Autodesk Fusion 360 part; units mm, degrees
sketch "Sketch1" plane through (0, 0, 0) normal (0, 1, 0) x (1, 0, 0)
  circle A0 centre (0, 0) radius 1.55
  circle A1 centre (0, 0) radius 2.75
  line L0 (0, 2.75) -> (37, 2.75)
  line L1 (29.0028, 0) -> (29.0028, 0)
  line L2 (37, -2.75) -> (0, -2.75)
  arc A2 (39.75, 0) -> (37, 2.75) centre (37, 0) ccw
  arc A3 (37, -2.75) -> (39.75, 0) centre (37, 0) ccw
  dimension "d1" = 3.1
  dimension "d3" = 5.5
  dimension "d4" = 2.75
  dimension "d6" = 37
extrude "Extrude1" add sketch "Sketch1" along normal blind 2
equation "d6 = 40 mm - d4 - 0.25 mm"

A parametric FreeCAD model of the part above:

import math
import FreeCAD as App
import Part
import Sketcher
from FreeCAD import Vector

doc = App.newDocument("Part")
params = doc.addObject("Spreadsheet::Sheet", "Params")
for row, (alias, value) in enumerate([
    ("sketch1_diameter", "3.1 mm"),
    ("sketch1_width", "37 mm"),
    ("sketch1_radius", "2.75 mm"),
    ("pad1_length", "2 mm"),
], start=1):
    params.set(f"A{row}", alias)
    params.set(f"B{row}", "=" + value)
    params.setAlias(f"B{row}", alias)

body = doc.addObject("PartDesign::Body", "Body")

sketch1 = doc.addObject("Sketcher::SketchObject", "Sketch")
body.addObject(sketch1)
sketch1.AttachmentSupport = (doc.XZ_Plane, [""])
sketch1.MapMode = "FlatFace"
sketch1.addGeometry([
    Part.ArcOfCircle(Part.Circle(Vector(0, 0, 0), Vector(0, 0, 1), 2.75), math.radians(90), math.radians(270)),
    Part.LineSegment(Vector(0, 2.75, 0), Vector(37, 2.75, 0)),
    Part.ArcOfCircle(Part.Circle(Vector(37, 0, 0), Vector(0, 0, 1), 2.75), math.radians(-90), math.radians(90)),
    Part.LineSegment(Vector(37, -2.75, 0), Vector(0, -2.75, 0)),
    Part.Circle(Vector(0, 0, 0), Vector(0, 0, 1), 1.55),
], False)
sketch1.addConstraint([
    Sketcher.Constraint("Tangent", 0, 1, 1, 1),
    Sketcher.Constraint("Tangent", 1, 2, 2, 2),
    Sketcher.Constraint("Tangent", 2, 1, 3, 1),
    Sketcher.Constraint("Tangent", 3, 2, 0, 2),
    Sketcher.Constraint("Horizontal", 1),
    Sketcher.Constraint("Horizontal", 3),
    Sketcher.Constraint("Coincident", 0, 3, -1, 1),
    Sketcher.Constraint("Coincident", 4, 3, -1, 1),
    Sketcher.Constraint("Diameter", 4, 3.1),
    Sketcher.Constraint("DistanceX", 1, 1, 1, 2, 37.0),
    Sketcher.Constraint("Radius", 0, 2.75),
])
sketch1.setExpression("Constraints[8]", "Params.sketch1_diameter")
sketch1.setExpression("Constraints[9]", "Params.sketch1_width")
sketch1.setExpression("Constraints[10]", "Params.sketch1_radius")
pad1 = doc.addObject("PartDesign::Pad", "Pad")
body.addObject(pad1)
pad1.Profile = sketch1
pad1.setExpression("Length", "Params.pad1_length")
pad1.Reversed = True

doc.recompute()
